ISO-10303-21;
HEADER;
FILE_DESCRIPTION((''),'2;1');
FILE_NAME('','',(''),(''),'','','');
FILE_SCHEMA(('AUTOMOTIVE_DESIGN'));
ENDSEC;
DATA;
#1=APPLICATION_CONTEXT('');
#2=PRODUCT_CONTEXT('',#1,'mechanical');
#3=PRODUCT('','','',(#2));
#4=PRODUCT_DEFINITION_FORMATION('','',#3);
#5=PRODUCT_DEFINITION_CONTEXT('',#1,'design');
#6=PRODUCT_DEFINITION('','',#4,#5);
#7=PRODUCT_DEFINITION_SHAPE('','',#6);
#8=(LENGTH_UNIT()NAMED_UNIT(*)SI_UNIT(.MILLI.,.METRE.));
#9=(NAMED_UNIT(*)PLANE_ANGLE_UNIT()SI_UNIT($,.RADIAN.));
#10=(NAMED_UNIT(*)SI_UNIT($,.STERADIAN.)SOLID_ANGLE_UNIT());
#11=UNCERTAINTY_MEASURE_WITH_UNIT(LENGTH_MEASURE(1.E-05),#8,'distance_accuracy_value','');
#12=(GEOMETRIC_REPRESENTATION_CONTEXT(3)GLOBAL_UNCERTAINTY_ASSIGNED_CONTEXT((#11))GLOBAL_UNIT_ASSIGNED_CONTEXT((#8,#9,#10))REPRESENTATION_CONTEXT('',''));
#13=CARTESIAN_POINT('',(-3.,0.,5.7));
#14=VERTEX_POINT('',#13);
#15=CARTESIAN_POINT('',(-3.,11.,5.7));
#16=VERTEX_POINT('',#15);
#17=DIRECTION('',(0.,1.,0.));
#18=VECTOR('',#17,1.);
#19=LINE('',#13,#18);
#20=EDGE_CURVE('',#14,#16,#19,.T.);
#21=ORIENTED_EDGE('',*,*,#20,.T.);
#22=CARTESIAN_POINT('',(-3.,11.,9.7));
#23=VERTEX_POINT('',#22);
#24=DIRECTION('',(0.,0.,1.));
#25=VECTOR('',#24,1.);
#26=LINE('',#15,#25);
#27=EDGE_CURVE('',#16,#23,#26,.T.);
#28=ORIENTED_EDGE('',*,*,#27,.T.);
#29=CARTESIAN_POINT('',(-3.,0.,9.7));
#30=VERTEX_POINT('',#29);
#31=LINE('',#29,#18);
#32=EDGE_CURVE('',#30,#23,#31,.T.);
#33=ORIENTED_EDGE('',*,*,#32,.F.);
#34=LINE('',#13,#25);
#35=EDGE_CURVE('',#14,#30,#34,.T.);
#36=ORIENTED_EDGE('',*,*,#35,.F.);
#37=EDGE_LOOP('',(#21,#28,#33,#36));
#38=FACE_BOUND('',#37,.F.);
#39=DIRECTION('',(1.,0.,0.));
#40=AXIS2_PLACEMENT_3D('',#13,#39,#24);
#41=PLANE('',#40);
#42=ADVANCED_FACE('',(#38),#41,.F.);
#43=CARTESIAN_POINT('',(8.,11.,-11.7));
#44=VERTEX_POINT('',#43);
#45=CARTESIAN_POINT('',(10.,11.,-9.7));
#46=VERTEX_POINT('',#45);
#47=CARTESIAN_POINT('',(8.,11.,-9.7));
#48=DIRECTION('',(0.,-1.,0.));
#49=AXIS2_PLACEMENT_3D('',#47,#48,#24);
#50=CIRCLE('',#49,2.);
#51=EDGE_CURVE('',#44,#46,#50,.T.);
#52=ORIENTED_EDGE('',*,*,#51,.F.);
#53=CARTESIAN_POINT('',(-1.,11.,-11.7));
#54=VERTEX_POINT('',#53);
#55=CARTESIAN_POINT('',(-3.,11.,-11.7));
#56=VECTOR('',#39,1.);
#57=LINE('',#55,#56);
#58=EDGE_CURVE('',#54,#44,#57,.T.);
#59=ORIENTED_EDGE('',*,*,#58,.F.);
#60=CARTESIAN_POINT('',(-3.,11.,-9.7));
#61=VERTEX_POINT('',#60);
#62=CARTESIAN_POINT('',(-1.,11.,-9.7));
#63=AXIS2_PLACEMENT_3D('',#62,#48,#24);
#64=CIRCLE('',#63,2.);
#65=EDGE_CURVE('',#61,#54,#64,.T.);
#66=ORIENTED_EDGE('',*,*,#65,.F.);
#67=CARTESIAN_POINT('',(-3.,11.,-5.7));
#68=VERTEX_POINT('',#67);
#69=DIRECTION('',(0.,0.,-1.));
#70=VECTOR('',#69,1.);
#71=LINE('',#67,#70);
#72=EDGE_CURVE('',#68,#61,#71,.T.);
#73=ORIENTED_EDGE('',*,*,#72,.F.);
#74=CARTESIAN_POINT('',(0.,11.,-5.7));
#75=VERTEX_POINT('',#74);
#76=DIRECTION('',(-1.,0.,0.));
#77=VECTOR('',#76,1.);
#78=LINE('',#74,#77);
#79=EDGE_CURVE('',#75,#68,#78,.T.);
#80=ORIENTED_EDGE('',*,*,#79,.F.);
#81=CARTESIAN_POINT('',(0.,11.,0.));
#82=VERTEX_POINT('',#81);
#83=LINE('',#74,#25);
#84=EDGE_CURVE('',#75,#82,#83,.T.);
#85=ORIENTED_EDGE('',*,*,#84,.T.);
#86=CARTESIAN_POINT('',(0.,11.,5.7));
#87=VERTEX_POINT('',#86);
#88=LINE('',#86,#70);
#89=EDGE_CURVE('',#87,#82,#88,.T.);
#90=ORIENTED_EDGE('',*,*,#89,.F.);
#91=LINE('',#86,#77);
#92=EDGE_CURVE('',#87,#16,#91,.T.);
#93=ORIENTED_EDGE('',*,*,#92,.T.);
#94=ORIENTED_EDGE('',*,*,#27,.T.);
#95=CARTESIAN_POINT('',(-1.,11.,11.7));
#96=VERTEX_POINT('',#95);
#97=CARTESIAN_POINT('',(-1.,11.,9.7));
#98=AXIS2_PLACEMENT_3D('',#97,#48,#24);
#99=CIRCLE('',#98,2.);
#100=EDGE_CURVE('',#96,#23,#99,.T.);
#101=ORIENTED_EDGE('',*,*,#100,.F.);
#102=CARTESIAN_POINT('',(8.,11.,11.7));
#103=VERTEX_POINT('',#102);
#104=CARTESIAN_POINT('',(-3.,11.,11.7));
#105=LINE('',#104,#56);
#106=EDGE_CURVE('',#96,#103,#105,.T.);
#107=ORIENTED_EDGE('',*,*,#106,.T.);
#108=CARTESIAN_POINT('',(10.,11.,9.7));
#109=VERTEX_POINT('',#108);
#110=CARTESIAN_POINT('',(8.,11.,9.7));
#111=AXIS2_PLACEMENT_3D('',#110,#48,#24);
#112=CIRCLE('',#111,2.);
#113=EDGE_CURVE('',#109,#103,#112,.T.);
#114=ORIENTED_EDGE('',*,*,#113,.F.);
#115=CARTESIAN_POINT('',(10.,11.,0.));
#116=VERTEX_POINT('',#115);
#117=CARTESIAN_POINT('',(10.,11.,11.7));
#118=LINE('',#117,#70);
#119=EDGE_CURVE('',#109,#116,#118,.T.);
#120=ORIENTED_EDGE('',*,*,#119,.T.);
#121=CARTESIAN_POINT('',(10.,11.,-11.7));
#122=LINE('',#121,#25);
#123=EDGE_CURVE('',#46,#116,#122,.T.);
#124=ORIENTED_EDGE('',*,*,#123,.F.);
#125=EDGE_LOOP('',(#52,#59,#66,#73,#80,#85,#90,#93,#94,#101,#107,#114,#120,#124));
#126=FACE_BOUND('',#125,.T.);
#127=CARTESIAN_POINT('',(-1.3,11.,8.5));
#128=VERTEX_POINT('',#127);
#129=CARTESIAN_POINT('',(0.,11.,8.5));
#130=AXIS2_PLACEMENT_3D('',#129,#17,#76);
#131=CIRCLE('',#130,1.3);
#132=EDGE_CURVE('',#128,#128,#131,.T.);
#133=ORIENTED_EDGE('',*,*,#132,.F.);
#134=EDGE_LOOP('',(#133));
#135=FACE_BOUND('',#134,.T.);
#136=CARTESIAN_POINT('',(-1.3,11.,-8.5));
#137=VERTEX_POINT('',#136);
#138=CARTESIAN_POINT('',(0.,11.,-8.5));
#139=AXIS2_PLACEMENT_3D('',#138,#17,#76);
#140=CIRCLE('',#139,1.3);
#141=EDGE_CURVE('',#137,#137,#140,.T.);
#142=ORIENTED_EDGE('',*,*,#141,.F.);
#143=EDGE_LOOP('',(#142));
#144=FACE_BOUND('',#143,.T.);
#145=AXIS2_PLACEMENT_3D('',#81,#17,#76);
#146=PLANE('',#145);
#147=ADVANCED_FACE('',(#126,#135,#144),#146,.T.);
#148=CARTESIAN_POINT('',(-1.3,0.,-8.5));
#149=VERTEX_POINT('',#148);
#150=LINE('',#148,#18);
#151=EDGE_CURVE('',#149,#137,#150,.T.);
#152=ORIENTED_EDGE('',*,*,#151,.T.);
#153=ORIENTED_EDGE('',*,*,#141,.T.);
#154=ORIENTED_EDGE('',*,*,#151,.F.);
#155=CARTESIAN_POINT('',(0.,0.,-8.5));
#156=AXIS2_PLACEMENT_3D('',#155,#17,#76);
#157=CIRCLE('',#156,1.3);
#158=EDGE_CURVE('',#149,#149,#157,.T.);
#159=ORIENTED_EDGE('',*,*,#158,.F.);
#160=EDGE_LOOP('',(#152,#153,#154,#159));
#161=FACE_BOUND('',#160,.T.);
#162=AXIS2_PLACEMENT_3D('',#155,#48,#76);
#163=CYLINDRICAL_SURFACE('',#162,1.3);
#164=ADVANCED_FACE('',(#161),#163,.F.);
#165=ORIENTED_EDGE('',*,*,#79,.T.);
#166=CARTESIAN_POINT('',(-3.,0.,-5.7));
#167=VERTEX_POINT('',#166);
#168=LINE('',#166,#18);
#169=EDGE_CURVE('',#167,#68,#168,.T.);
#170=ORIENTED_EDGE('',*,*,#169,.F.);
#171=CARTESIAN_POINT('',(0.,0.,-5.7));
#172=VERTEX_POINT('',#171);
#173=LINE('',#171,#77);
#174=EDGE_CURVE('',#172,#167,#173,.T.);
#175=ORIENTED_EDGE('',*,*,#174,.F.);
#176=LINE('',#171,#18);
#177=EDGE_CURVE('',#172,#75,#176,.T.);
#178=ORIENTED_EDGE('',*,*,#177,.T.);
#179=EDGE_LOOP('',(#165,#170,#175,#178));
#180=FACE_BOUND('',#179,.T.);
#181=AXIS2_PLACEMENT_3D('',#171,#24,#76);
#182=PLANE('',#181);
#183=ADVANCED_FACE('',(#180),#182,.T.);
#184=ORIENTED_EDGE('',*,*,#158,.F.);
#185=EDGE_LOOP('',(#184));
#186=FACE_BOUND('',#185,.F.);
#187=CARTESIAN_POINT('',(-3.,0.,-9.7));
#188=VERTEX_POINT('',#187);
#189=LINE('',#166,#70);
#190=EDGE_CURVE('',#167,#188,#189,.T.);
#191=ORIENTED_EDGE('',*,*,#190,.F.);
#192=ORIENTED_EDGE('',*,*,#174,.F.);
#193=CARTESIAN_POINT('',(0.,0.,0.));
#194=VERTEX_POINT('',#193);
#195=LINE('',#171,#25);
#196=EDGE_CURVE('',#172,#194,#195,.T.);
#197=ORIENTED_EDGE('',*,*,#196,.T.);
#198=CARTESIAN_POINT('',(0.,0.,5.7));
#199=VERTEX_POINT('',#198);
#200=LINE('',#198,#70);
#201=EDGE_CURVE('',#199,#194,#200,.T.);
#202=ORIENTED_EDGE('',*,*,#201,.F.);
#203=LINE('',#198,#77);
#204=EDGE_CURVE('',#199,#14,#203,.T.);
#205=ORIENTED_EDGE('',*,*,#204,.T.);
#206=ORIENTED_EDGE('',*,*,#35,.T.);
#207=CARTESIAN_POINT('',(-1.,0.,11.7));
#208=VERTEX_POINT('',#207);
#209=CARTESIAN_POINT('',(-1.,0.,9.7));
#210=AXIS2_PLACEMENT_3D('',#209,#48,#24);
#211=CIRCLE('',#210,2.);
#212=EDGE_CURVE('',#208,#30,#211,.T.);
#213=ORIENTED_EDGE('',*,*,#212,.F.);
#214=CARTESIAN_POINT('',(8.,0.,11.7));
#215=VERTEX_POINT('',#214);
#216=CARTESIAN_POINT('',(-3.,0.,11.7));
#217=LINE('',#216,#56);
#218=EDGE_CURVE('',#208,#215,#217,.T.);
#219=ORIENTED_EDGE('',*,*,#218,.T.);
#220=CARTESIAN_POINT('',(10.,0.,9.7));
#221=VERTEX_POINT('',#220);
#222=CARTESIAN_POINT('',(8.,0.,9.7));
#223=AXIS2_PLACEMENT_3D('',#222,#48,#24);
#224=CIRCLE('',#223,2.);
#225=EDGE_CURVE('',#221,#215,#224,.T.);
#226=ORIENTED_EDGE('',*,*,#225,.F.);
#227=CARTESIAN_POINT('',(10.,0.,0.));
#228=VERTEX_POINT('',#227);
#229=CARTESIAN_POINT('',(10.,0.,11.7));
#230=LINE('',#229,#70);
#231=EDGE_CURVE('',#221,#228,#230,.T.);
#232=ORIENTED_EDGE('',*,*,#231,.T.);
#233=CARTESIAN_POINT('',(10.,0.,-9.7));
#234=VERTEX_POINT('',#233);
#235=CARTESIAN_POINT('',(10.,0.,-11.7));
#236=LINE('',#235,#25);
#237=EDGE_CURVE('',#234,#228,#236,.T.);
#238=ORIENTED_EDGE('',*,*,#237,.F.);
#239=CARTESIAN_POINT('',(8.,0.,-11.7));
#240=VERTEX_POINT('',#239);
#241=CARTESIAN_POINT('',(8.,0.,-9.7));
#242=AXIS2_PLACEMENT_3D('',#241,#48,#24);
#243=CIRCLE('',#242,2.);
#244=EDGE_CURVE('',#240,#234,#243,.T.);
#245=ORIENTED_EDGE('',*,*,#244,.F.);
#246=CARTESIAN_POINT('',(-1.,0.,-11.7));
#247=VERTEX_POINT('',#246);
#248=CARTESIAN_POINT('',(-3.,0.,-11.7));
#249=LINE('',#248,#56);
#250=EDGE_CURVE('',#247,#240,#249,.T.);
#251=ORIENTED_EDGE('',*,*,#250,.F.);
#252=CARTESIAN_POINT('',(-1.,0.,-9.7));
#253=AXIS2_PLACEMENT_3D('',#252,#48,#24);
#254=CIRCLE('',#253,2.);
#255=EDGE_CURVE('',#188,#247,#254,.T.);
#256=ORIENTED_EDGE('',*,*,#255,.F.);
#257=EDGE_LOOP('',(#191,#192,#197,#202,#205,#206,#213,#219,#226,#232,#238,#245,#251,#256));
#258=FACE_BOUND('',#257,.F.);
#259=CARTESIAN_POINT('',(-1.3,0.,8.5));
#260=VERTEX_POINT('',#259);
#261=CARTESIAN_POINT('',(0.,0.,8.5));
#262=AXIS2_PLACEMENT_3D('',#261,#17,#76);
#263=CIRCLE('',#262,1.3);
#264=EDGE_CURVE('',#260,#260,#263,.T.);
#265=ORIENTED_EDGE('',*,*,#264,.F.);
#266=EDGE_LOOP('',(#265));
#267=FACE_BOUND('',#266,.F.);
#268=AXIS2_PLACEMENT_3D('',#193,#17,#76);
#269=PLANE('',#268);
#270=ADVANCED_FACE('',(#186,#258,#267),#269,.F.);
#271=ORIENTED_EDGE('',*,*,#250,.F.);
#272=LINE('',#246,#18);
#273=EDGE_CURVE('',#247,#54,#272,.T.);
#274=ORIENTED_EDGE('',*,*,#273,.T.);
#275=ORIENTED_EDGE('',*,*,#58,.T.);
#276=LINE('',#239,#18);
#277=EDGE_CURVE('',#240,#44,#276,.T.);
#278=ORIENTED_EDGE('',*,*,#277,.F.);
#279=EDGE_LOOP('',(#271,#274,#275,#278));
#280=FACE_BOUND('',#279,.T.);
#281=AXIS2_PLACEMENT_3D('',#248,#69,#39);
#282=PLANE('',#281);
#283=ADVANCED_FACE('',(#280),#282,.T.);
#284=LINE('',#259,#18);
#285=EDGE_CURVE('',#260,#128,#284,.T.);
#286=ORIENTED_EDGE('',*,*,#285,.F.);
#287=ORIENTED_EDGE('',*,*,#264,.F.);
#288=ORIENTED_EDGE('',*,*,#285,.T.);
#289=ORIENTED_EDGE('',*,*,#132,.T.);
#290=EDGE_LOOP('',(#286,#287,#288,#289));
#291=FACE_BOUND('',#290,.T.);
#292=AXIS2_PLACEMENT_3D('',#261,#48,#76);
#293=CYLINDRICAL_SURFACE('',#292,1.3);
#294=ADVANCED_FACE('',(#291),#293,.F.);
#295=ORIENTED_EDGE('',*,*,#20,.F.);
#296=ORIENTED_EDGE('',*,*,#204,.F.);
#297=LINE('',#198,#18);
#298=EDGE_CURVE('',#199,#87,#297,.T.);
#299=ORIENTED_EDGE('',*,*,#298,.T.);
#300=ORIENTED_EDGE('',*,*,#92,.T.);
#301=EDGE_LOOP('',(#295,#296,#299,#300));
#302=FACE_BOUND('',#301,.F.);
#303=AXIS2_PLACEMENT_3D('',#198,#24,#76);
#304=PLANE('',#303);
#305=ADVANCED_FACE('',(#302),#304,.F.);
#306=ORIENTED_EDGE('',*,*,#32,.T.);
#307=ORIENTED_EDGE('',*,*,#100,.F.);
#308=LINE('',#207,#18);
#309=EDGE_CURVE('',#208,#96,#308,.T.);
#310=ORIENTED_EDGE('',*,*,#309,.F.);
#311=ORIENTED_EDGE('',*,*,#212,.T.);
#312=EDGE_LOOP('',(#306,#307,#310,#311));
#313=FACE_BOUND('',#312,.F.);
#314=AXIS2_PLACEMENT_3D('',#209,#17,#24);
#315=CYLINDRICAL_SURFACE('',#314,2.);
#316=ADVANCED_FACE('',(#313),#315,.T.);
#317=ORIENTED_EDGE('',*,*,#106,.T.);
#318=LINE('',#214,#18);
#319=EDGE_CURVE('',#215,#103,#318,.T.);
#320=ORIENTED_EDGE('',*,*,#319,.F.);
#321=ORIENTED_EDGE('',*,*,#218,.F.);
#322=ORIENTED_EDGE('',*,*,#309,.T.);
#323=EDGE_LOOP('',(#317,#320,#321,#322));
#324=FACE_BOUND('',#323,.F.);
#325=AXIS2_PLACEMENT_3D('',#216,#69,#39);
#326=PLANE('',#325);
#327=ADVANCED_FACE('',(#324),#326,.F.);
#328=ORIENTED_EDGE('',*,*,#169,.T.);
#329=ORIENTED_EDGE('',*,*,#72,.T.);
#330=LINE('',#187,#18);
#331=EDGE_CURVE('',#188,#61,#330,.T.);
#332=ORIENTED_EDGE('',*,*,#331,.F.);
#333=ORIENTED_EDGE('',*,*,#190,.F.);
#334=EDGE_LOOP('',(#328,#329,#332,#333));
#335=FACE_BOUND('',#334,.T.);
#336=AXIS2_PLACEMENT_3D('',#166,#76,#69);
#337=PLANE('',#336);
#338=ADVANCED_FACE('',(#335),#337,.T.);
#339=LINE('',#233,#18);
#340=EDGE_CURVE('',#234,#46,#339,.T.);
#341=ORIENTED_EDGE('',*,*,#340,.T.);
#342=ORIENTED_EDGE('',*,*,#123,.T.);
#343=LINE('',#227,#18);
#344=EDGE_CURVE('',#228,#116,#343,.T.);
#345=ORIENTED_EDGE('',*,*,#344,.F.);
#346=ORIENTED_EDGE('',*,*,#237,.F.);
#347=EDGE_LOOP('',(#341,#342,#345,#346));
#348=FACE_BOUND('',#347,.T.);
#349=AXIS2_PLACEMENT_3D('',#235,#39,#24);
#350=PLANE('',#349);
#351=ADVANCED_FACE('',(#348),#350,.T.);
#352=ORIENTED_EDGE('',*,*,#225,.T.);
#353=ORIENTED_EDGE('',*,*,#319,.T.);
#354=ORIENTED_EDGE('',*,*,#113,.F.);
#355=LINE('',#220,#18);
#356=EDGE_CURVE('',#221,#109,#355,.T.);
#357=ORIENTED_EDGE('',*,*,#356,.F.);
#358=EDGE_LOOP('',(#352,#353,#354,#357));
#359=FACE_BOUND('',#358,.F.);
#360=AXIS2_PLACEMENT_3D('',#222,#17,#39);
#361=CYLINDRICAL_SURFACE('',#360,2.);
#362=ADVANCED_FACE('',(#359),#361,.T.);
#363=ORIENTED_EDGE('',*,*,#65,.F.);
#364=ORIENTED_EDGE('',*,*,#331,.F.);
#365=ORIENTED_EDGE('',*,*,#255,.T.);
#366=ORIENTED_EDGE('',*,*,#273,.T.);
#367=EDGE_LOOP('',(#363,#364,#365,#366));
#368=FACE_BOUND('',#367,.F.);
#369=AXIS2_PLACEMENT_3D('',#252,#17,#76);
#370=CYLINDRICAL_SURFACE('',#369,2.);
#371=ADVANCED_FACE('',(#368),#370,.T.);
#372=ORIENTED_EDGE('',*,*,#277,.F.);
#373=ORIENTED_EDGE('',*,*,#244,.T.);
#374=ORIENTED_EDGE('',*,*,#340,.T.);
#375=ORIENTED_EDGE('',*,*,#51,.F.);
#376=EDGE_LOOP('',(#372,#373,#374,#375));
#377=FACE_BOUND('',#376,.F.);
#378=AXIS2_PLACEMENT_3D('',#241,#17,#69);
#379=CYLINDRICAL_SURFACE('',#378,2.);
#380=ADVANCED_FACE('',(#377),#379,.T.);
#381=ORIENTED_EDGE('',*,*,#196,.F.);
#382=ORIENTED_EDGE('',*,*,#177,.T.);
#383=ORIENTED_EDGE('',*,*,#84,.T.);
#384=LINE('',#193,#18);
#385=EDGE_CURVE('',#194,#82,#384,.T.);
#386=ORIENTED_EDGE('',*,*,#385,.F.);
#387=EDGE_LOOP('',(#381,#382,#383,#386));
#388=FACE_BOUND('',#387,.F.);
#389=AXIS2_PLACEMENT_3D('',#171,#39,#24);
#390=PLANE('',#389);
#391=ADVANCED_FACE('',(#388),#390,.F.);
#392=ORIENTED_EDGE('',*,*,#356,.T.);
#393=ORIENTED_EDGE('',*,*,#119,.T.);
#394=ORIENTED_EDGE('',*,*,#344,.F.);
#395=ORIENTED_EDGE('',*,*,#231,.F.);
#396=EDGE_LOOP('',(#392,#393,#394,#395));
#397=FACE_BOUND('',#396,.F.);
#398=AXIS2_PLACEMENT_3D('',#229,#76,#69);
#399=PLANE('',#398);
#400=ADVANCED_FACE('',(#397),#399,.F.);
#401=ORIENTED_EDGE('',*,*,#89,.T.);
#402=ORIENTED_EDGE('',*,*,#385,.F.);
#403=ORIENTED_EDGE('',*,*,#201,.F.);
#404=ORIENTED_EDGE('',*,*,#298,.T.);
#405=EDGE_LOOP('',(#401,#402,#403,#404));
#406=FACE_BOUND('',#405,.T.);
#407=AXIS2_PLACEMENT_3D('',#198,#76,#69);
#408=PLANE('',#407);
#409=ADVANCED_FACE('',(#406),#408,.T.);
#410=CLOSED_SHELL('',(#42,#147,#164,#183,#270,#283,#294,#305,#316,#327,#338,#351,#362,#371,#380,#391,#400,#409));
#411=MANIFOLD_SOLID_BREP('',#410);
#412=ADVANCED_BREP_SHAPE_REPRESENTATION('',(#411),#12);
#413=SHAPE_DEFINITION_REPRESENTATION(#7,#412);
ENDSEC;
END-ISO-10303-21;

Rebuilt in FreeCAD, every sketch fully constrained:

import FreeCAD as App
import Part
import Sketcher

V = App.Vector
Q = App.Units.Quantity


def edges_at(feature, points):
    """Names of the edges that pass closest to the given points."""
    edges = feature.Shape.Edges
    near = lambda p: min(range(len(edges)), key=lambda i: edges[i].distToShape(Part.Vertex(*p))[0])
    return sorted({f"Edge{near(p) + 1}" for p in points})


def add_polygon(sketch, points):
    """Adds a closed chain of lines whose ends are joined by coincident constraints."""
    first, n = sketch.GeometryCount, len(points)
    for a, b in zip(points, points[1:] + points[:1]):
        sketch.addGeometry(Part.LineSegment(App.Vector(*a, 0), App.Vector(*b, 0)), False)
    for i in range(n):
        sketch.addConstraint(Sketcher.Constraint("Coincident", first + i, 2, first + (i + 1) % n, 1))

doc = App.newDocument("Part")
params = doc.addObject("Spreadsheet::Sheet", "Params")
for row, (alias, value) in enumerate([
    ("sketch1_diameter", "2.6 mm"),
    ("sketch1_width", "3 mm"),
    ("sketch1_width2", "13 mm"),
    ("sketch1_height", "6 mm"),
    ("sketch1_height2", "11.4 mm"),
    ("pad1_length", "11 mm"),
    ("fillet_radius", "2 mm"),
], start=1):
    params.set(f"A{row}", alias)
    params.set(f"B{row}", "=" + value)
    params.setAlias(f"B{row}", alias)

body = doc.addObject("PartDesign::Body", "Body")

# Sketch on XZ plane
sketch1 = body.newObject("Sketcher::SketchObject", "Sketch")
sketch1.AttachmentSupport = (doc.getObject("XZ_Plane"), [""])
sketch1.MapMode = "FlatFace"
add_polygon(sketch1, [(0, -5.7), (0, 5.7), (-3, 5.7), (-3, 11.7), (10, 11.7), (10, -11.7), (-3, -11.7), (-3, -5.7)])  # lines 0-7
sketch1.addGeometry(Part.Circle(V(0, -8.5, 0), V(0, 0, 1), 1.3), False)  # 8
sketch1.addGeometry(Part.Circle(V(0, 8.5, 0), V(0, 0, 1), 1.3), False)  # 9
sketch1.addConstraint([
    Sketcher.Constraint("Vertical", 0),
    Sketcher.Constraint("Horizontal", 1),
    Sketcher.Constraint("Vertical", 2),
    Sketcher.Constraint("Horizontal", 3),
    Sketcher.Constraint("Vertical", 4),
    Sketcher.Constraint("Horizontal", 5),
    Sketcher.Constraint("Vertical", 6),
    Sketcher.Constraint("Horizontal", 7),
    Sketcher.Constraint("Equal", 8, 9),
    Sketcher.Constraint("Symmetric", 8, 3, 9, 3, -1, 1),
    Sketcher.Constraint("Symmetric", 0, 2, 7, 2, -1, 1),
    Sketcher.Constraint("Symmetric", 2, 2, 5, 2, -1),
    Sketcher.Constraint("PointOnObject", 8, 3, -2),
    Sketcher.Constraint("Diameter", 8, Q("2.6 mm")),
    Sketcher.Constraint("DistanceX", 1, 2, 1, 1, Q("3 mm")),
    Sketcher.Constraint("DistanceX", 3, 1, 3, 2, Q("13 mm")),
    Sketcher.Constraint("DistanceY", 2, 1, 2, 2, Q("6 mm")),
    Sketcher.Constraint("DistanceY", 0, 1, 0, 2, Q("11.4 mm")),
    Sketcher.Constraint("DistanceY", 8, 3, 9, 3, Q("17 mm")),
])
sketch1.setExpression("Constraints[21]", "Params.sketch1_diameter")
sketch1.setExpression("Constraints[22]", "Params.sketch1_width")
sketch1.setExpression("Constraints[23]", "Params.sketch1_width2")
sketch1.setExpression("Constraints[24]", "Params.sketch1_height")
sketch1.setExpression("Constraints[25]", "Params.sketch1_height2")
pad1 = body.newObject("PartDesign::Pad", "Pad")
pad1.Profile = sketch1
pad1.setExpression("Length", "Params.pad1_length")
pad1.Reversed = True
doc.recompute()

fillet = body.newObject("PartDesign::Fillet", "Fillet")
fillet.Base = (pad1, edges_at(pad1, [
    (10, 5.5, 11.7),
    (-3, 5.5, 11.7),
    (10, 5.5, -11.7),
    (-3, 5.5, -11.7),
]))
fillet.setExpression("Radius", "Params.fillet_radius")

doc.recompute()
